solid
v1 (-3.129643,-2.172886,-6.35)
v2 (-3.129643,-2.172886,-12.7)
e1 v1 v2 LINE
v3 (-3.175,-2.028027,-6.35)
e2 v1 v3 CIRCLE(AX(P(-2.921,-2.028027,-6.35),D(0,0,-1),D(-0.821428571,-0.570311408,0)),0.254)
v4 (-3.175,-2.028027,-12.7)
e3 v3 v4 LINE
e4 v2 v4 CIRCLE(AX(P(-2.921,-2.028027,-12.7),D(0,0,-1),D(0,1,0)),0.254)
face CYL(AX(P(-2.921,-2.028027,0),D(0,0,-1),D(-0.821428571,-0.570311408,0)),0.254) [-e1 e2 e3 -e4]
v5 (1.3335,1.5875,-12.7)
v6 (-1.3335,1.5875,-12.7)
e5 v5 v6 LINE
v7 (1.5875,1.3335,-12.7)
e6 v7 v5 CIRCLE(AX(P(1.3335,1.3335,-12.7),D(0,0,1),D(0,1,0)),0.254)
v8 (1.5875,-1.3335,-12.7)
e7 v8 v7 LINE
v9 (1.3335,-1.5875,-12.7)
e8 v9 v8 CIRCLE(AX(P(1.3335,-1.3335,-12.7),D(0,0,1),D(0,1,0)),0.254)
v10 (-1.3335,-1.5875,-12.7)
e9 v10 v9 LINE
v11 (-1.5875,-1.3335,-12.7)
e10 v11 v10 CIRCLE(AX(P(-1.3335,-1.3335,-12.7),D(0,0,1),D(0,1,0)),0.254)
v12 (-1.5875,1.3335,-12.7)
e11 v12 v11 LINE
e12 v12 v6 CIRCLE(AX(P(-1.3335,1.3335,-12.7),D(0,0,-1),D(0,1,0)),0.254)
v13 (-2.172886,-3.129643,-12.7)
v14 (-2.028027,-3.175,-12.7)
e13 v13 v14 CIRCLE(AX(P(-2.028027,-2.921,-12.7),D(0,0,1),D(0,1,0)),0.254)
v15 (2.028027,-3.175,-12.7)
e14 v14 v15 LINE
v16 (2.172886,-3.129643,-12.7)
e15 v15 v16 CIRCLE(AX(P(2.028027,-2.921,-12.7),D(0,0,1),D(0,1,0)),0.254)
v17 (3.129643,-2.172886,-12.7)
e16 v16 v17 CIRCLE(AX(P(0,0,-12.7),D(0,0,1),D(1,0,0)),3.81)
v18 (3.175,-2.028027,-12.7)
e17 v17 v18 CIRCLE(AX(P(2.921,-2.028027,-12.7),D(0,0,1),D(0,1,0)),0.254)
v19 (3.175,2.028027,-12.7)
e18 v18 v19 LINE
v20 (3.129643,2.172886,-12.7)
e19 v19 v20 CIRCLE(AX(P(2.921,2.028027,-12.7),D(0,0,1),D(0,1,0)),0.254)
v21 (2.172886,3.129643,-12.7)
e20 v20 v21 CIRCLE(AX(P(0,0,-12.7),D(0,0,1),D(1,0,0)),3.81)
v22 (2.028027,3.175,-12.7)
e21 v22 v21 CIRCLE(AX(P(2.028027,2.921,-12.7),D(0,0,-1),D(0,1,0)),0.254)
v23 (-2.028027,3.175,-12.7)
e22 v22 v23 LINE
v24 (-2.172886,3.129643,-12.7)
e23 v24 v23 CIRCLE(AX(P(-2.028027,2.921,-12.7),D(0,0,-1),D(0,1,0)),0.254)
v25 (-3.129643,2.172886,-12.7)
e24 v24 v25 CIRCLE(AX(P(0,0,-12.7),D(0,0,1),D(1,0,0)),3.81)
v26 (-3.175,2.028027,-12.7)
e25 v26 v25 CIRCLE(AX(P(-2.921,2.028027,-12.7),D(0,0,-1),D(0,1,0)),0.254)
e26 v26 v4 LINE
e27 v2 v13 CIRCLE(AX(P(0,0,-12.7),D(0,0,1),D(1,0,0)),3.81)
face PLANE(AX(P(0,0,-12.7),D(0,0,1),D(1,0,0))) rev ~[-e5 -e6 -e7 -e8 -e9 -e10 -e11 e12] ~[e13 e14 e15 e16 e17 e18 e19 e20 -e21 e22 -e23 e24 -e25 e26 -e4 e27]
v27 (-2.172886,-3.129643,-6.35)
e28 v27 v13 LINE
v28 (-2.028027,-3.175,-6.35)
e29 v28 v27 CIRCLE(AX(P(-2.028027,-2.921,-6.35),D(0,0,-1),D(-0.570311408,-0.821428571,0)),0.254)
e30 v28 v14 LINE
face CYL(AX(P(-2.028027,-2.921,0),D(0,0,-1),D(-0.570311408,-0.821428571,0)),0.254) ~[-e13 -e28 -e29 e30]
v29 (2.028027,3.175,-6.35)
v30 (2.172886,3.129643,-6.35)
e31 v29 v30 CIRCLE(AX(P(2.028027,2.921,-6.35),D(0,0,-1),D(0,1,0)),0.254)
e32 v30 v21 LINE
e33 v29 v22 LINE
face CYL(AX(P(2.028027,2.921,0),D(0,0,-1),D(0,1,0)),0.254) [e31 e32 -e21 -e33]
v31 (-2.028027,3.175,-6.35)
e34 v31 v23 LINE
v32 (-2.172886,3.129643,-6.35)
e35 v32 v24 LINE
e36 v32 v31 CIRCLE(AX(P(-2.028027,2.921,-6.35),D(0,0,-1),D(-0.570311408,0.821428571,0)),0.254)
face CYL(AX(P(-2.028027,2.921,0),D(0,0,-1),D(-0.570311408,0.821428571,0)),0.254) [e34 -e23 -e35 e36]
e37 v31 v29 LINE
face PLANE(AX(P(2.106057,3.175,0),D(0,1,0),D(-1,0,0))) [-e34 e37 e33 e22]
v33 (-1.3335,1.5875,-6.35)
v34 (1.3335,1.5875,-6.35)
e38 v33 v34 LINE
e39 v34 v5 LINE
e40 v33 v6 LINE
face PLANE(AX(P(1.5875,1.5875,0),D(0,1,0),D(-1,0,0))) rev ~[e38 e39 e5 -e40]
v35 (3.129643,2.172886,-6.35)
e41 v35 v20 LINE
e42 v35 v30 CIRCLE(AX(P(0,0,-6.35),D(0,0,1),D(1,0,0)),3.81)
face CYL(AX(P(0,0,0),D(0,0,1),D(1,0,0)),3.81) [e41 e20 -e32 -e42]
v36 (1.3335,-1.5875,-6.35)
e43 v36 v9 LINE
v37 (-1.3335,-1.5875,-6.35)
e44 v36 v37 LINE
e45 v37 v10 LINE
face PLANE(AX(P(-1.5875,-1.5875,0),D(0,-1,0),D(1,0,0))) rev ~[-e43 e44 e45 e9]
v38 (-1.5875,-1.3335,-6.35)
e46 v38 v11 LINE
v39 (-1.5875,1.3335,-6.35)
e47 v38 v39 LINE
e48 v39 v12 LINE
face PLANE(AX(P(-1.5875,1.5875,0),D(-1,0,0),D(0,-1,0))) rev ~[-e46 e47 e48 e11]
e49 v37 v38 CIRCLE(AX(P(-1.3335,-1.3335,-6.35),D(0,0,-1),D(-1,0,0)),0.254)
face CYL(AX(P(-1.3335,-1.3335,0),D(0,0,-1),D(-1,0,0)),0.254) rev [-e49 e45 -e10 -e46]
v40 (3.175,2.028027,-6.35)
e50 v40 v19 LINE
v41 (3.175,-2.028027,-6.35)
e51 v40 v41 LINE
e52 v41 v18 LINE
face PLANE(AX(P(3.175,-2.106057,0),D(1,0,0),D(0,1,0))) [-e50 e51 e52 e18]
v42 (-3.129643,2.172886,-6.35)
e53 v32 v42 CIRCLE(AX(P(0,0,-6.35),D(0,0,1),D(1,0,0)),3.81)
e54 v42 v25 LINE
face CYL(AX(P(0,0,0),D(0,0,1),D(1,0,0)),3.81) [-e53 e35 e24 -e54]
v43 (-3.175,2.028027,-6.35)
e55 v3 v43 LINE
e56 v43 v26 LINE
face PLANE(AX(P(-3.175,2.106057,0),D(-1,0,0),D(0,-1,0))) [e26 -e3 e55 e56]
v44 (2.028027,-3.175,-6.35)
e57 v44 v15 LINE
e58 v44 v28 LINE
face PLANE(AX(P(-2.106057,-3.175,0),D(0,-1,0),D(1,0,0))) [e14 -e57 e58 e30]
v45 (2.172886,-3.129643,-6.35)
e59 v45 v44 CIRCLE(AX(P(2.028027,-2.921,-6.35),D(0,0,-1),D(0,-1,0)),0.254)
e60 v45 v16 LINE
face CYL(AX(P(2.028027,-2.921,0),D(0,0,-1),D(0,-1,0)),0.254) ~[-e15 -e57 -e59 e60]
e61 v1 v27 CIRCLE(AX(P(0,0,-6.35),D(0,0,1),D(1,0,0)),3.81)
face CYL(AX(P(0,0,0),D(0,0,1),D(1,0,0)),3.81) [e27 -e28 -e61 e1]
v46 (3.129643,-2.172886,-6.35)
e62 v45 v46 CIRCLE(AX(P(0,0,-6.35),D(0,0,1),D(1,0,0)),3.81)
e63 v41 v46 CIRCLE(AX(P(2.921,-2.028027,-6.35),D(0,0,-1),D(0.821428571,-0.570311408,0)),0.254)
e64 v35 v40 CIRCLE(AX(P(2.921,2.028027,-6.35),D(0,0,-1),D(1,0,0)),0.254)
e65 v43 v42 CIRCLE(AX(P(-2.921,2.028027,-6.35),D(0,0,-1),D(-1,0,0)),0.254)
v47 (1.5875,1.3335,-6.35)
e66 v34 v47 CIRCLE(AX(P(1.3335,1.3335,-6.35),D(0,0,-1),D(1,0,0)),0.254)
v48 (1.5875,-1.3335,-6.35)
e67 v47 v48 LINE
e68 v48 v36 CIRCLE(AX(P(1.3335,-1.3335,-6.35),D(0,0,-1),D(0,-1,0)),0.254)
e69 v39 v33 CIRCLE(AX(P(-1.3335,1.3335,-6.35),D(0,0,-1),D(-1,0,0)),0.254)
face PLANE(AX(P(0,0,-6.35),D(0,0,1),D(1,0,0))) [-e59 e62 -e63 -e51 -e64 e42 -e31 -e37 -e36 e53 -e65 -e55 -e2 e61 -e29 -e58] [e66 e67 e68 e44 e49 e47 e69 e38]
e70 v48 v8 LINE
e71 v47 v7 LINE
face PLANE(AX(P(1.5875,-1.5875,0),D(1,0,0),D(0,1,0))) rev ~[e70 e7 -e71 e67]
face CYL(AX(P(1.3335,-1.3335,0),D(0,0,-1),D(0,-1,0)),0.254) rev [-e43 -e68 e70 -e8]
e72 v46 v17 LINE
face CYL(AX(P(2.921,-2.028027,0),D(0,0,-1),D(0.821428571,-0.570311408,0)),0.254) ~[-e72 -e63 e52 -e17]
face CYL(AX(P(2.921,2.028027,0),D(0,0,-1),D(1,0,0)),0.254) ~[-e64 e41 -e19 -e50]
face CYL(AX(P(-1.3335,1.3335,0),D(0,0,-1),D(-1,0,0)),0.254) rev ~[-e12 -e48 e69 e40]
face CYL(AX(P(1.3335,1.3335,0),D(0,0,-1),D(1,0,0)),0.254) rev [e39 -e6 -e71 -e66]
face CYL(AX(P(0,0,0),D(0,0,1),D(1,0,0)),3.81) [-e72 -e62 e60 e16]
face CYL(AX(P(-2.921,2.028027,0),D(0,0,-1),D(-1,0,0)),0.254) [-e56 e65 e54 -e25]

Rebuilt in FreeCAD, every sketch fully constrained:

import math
import FreeCAD as App
import Part
import Sketcher
Q = App.Units.Quantity


def edges_at(feature, points):
    """Names of the edges that pass closest to the given points."""
    edges = feature.Shape.Edges
    near = lambda p: min(range(len(edges)), key=lambda i: edges[i].distToShape(Part.Vertex(*p))[0])
    return sorted({f"Edge{near(p) + 1}" for p in points})

doc = App.newDocument("Part")
body = doc.addObject("PartDesign::Body", "Body")

sketch1 = body.newObject("Sketcher::SketchObject", "Sketch")
sketch1.AttachmentSupport = (doc.getObject("XY_Plane"), [""])
sketch1.MapMode = "FlatFace"
sketch1.addGeometry([
    Part.ArcOfCircle(Part.Circle(App.Vector(0, 0, 0), App.Vector(0, 0, 1), 3.8), math.radians(-146), math.radians(-124)),
    Part.LineSegment(App.Vector(-2.1, -3.2, 0), App.Vector(2.1, -3.2, 0)),
    Part.ArcOfCircle(Part.Circle(App.Vector(0, 0, 0), App.Vector(0, 0, 1), 3.8), math.radians(-56), math.radians(-34)),
    Part.LineSegment(App.Vector(3.2, -2.1, 0), App.Vector(3.2, 2.1, 0)),
    Part.ArcOfCircle(Part.Circle(App.Vector(0, 0, 0), App.Vector(0, 0, 1), 3.8), math.radians(34), math.radians(56)),
    Part.LineSegment(App.Vector(2.1, 3.2, 0), App.Vector(-2.1, 3.2, 0)),
    Part.ArcOfCircle(Part.Circle(App.Vector(0, 0, 0), App.Vector(0, 0, 1), 3.8), math.radians(124), math.radians(146)),
    Part.LineSegment(App.Vector(-3.2, 2.1, 0), App.Vector(-3.2, -2.1, 0)),
], False)
sketch1.addConstraint([
    Sketcher.Constraint("Coincident", 0, 2, 1, 1),
    Sketcher.Constraint("Coincident", 1, 2, 2, 1),
    Sketcher.Constraint("Coincident", 2, 2, 3, 1),
    Sketcher.Constraint("Coincident", 3, 2, 4, 1),
    Sketcher.Constraint("Coincident", 4, 2, 5, 1),
    Sketcher.Constraint("Coincident", 5, 2, 6, 1),
    Sketcher.Constraint("Coincident", 6, 2, 7, 1),
    Sketcher.Constraint("Coincident", 7, 2, 0, 1),
    Sketcher.Constraint("Horizontal", 1),
    Sketcher.Constraint("Vertical", 3),
    Sketcher.Constraint("Horizontal", 5),
    Sketcher.Constraint("Vertical", 7),
    Sketcher.Constraint("Coincident", 0, 3, -1, 1),
    Sketcher.Constraint("Coincident", 2, 3, -1, 1),
    Sketcher.Constraint("Coincident", 4, 3, -1, 1),
    Sketcher.Constraint("Coincident", 6, 3, -1, 1),
    Sketcher.Constraint("Equal", 0, 2),
    Sketcher.Constraint("Equal", 2, 4),
    Sketcher.Constraint("Equal", 4, 6),
    Sketcher.Constraint("Horizontal", 3, 2, 6, 2),
    Sketcher.Constraint("Vertical", 1, 2, 4, 2),
    Sketcher.Constraint("Equal", 5, 3),
    Sketcher.Constraint("Radius", 0, Q("0.15 in")),
    Sketcher.Constraint("DistanceY", 0, 2, -1, 1, Q("0.125 in")),
])
pad1 = body.newObject("PartDesign::Pad", "Pad")
pad1.Profile = sketch1
pad1.Length = Q("0.5 in")
pad1.Reversed = True

sketch2 = body.newObject("Sketcher::SketchObject", "Sketch001")
sketch2.AttachmentSupport = (doc.getObject("XY_Plane"), [""])
sketch2.MapMode = "FlatFace"
sketch2.addGeometry([
    Part.LineSegment(App.Vector(-1.6, 1.6, 0), App.Vector(-1.6, -1.6, 0)),
    Part.LineSegment(App.Vector(-1.6, -1.6, 0), App.Vector(1.6, -1.6, 0)),
    Part.LineSegment(App.Vector(1.6, -1.6, 0), App.Vector(1.6, 1.6, 0)),
    Part.LineSegment(App.Vector(1.6, 1.6, 0), App.Vector(-1.6, 1.6, 0)),
], False)
sketch2.addConstraint([
    Sketcher.Constraint("Coincident", 0, 2, 1, 1),
    Sketcher.Constraint("Coincident", 1, 2, 2, 1),
    Sketcher.Constraint("Coincident", 2, 2, 3, 1),
    Sketcher.Constraint("Coincident", 3, 2, 0, 1),
    Sketcher.Constraint("Vertical", 0),
    Sketcher.Constraint("Horizontal", 1),
    Sketcher.Constraint("Vertical", 2),
    Sketcher.Constraint("Horizontal", 3),
    Sketcher.Constraint("Symmetric", 0, 2, 2, 2, -1, 1),
    Sketcher.Constraint("Equal", 3, 0),
    Sketcher.Constraint("DistanceX", 1, 1, 1, 2, Q("0.125 in")),
])
pocket1 = body.newObject("PartDesign::Pocket", "Pocket")
pocket1.Profile = sketch2
pocket1.Length = Q("0.5 in")
doc.recompute()

fillet = body.newObject("PartDesign::Fillet", "Fillet")
fillet.Base = (pocket1, edges_at(pocket1, [
    (-1.587, -1.587, -6.35),
    (-1.587, 1.587, -6.35),
    (1.587, 1.587, -6.35),
    (1.587, -1.587, -6.35),
    (2.106, 3.175, -6.35),
    (3.175, 2.106, -6.35),
    (3.175, -2.106, -6.35),
    (2.106, -3.175, -6.35),
    (-2.106, -3.175, -6.35),
    (-3.175, -2.106, -6.35),
    (-3.175, 2.106, -6.35),
    (-2.106, 3.175, -6.35),
]))
fillet.Radius = Q("0.01 in")

sketch3 = body.newObject("Sketcher::SketchObject", "Sketch002")
sketch3.AttachmentSupport = (doc.getObject("XY_Plane"), [""])
sketch3.MapMode = "FlatFace"
sketch3.addGeometry([
    Part.LineSegment(App.Vector(5, 6, 0), App.Vector(-7, 6, 0)),
    Part.LineSegment(App.Vector(-7, 6, 0), App.Vector(-7, -5, 0)),
    Part.LineSegment(App.Vector(-7, -5, 0), App.Vector(5, -5, 0)),
    Part.LineSegment(App.Vector(5, -5, 0), App.Vector(5, 6, 0)),
], False)
sketch3.addConstraint([
    Sketcher.Constraint("Coincident", 0, 2, 1, 1),
    Sketcher.Constraint("Coincident", 1, 2, 2, 1),
    Sketcher.Constraint("Coincident", 2, 2, 3, 1),
    Sketcher.Constraint("Coincident", 3, 2, 0, 1),
    Sketcher.Constraint("Horizontal", 0),
    Sketcher.Constraint("Vertical", 1),
    Sketcher.Constraint("Horizontal", 2),
    Sketcher.Constraint("Vertical", 3),
    Sketcher.Constraint("DistanceY", 1, 2, 1, 1, Q("0.4361 in")),
    Sketcher.Constraint("DistanceX", 0, 2, 0, 1, 12.287),
    Sketcher.Constraint("DistanceX", 0, 2, -1, 1, 7.3828),
    Sketcher.Constraint("DistanceY", -1, 1, 0, 2, 5.764),
])
pocket2 = body.newObject("PartDesign::Pocket", "Pocket001")
pocket2.Profile = sketch3
pocket2.Length = Q("0.25 in")

doc.recompute()
